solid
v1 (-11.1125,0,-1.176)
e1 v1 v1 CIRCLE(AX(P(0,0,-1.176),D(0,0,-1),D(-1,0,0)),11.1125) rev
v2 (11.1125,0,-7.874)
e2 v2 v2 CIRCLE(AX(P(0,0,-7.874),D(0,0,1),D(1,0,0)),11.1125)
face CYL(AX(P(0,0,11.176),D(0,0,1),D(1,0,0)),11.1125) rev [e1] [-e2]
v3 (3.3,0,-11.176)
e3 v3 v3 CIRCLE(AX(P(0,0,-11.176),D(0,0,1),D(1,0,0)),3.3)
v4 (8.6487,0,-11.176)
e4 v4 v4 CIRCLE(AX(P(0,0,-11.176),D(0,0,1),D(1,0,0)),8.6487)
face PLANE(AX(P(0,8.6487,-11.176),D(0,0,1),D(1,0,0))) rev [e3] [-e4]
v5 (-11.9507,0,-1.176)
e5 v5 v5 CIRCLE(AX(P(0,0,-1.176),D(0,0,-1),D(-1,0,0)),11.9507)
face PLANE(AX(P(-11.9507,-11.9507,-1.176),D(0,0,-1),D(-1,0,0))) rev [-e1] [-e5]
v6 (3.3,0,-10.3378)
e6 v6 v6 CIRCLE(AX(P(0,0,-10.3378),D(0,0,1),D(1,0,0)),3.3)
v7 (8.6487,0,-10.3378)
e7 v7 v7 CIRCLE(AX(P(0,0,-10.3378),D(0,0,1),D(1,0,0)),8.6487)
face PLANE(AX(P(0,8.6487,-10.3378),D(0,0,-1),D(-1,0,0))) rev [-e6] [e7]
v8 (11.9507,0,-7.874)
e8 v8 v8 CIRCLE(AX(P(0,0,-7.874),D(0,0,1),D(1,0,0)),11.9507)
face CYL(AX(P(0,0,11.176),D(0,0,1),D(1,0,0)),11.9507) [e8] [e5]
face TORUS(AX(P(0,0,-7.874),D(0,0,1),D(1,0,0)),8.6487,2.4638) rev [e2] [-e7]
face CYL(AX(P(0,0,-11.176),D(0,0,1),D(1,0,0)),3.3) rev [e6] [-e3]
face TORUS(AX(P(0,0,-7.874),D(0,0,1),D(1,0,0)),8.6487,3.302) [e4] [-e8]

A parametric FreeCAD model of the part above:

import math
import FreeCAD as App
import Part
import Sketcher

V = App.Vector
Q = App.Units.Quantity

doc = App.newDocument("Part")
body = doc.addObject("PartDesign::Body", "Body")

# Sketch on YZ plane
sketch1 = body.newObject("Sketcher::SketchObject", "Sketch")
sketch1.AttachmentSupport = (doc.getObject("YZ_Plane"), [""])
sketch1.MapMode = "FlatFace"
sketch1.addGeometry([
    Part.LineSegment(V(12, 11.2, 0), V(11.1, 11.2, 0)),  # 0
    Part.LineSegment(V(11.1, 11.2, 0), V(11.1, -7.9, 0)),  # 1
    Part.ArcOfCircle(Part.Circle(V(8.6, -7.9, 0), V(0, 0, 1), 2.5), math.radians(-90), math.radians(0)),  # 2
    Part.LineSegment(V(8.6, -10.3, 0), V(0, -10.3, 0)),  # 3
    Part.LineSegment(V(0, -10.3, 0), V(0, -11.2, 0)),  # 4
    Part.LineSegment(V(0, -11.2, 0), V(8.6, -11.2, 0)),  # 5
    Part.ArcOfCircle(Part.Circle(V(8.6, -7.9, 0), V(0, 0, 1), 3.3), math.radians(-90), math.radians(0)),  # 6
    Part.LineSegment(V(12, -7.9, 0), V(12, 11.2, 0)),  # 7
], False)
sketch1.addConstraint([
    Sketcher.Constraint("Coincident", 0, 2, 1, 1),
    Sketcher.Constraint("Tangent", 1, 2, 2, 2),
    Sketcher.Constraint("Tangent", 2, 1, 3, 1),
    Sketcher.Constraint("Coincident", 3, 2, 4, 1),
    Sketcher.Constraint("Coincident", 4, 2, 5, 1),
    Sketcher.Constraint("Tangent", 5, 2, 6, 1),
    Sketcher.Constraint("Tangent", 6, 2, 7, 1),
    Sketcher.Constraint("Coincident", 7, 2, 0, 1),
    Sketcher.Constraint("Horizontal", 0),
    Sketcher.Constraint("Vertical", 1),
    Sketcher.Constraint("Horizontal", 3),
    Sketcher.Constraint("Vertical", 4),
    Sketcher.Constraint("Horizontal", 5),
    Sketcher.Constraint("Vertical", 7),
    Sketcher.Constraint("Coincident", 6, 3, 2, 3),
    Sketcher.Constraint("PointOnObject", 3, 2, -2),
    Sketcher.Constraint("Radius", 6, Q("0.13 in")),
    Sketcher.Constraint("Radius", 2, Q("0.097 in")),
    Sketcher.Constraint("DistanceY", 1, 2, 1, 1, Q("0.75 in")),
    Sketcher.Constraint("DistanceY", 2, 3, -1, 1, Q("0.31 in")),
    Sketcher.Constraint("DistanceX", 3, 2, 3, 1, Q("0.3405 in")),
])
revolution = body.newObject("PartDesign::Revolution", "Revolution")
revolution.Profile = sketch1
revolution.ReferenceAxis = (sketch1, ["V_Axis"])
revolution.Angle = 360

# Sketch on XZ plane
sketch2 = body.newObject("Sketcher::SketchObject", "Sketch001")
sketch2.AttachmentSupport = (doc.getObject("XZ_Plane"), [""])
sketch2.MapMode = "FlatFace"
sketch2.addGeometry([
    Part.LineSegment(V(-12, -1, 0), V(-12, 11, 0)),
    Part.LineSegment(V(-12, 11, 0), V(12, 11, 0)),
    Part.LineSegment(V(12, 11, 0), V(12, -1, 0)),
    Part.LineSegment(V(12, -1, 0), V(-12, -1, 0)),
], False)
sketch2.addConstraint([
    Sketcher.Constraint("Coincident", 0, 2, 1, 1),
    Sketcher.Constraint("Coincident", 1, 2, 2, 1),
    Sketcher.Constraint("Coincident", 2, 2, 3, 1),
    Sketcher.Constraint("Coincident", 3, 2, 0, 1),
    Sketcher.Constraint("Vertical", 0),
    Sketcher.Constraint("Horizontal", 1),
    Sketcher.Constraint("Vertical", 2),
    Sketcher.Constraint("Horizontal", 3),
    Sketcher.Constraint("DistanceX", 1, 1, 1, 2, Q("0.941 in")),
    Sketcher.Constraint("DistanceY", -1, 1, 0, 2, Q("0.44 in")),
    Sketcher.Constraint("DistanceY", 0, 1, 0, 2, Q("12.352 mm")),
    Sketcher.Constraint("DistanceX", 0, 2, -1, 1, Q("0.4705 in")),
])
pocket1 = body.newObject("PartDesign::Pocket", "Pocket")
pocket1.Profile = sketch2
pocket1.Type = "ThroughAll"
pocket1.Midplane = True

# Sketch on XY plane
sketch3 = body.newObject("Sketcher::SketchObject", "Sketch002")
sketch3.AttachmentSupport = (doc.getObject("XY_Plane"), [""])
sketch3.MapMode = "FlatFace"
sketch3.AttachmentOffset = App.Placement(V(0, 0, -0.407 * 25.4), App.Rotation())
sketch3.addGeometry(Part.Circle(V(0, 0, 0), V(0, 0, 1), 3.3), False)
sketch3.addConstraint([
    Sketcher.Constraint("Coincident", 0, 3, -1, 1),
    Sketcher.Constraint("Diameter", 0, Q("6.6 mm")),
])
pocket2 = body.newObject("PartDesign::Pocket", "Pocket001")
pocket2.Profile = sketch3
pocket2.Type = "ThroughAll"

doc.recompute()
